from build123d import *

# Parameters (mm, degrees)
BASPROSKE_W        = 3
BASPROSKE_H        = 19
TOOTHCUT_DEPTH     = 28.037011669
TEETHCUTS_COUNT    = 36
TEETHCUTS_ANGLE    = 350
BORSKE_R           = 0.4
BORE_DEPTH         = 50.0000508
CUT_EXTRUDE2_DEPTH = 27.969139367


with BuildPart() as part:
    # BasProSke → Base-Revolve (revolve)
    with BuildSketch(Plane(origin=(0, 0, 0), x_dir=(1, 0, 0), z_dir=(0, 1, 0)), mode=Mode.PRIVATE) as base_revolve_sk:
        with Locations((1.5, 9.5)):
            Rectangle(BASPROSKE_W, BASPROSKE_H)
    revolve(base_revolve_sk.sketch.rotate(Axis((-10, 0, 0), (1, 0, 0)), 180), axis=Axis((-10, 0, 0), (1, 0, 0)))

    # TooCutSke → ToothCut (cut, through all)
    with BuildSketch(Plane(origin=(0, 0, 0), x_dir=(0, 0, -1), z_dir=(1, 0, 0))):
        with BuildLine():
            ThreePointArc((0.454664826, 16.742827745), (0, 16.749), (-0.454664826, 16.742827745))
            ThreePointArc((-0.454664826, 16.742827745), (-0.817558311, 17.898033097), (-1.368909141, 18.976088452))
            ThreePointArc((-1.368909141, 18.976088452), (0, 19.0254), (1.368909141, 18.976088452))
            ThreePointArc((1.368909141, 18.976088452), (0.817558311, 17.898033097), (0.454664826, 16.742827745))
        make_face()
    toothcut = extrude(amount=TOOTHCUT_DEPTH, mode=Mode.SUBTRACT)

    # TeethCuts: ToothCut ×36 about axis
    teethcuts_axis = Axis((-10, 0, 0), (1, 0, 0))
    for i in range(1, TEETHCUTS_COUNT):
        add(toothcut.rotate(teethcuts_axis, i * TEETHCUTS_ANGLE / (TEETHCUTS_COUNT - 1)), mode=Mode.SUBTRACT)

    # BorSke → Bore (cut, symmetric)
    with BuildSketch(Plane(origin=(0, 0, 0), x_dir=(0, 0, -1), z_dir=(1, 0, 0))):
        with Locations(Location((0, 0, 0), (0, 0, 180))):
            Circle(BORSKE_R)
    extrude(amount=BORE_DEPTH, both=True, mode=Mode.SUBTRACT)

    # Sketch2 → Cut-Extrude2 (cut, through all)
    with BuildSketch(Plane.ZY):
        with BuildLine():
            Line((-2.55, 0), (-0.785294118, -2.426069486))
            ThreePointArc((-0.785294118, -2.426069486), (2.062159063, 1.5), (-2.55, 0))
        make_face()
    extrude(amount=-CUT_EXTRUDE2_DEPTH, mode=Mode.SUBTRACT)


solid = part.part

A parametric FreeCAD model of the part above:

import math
import FreeCAD as App
import Part
import Sketcher

V = App.Vector

doc = App.newDocument("Part")
body = doc.addObject("PartDesign::Body", "Body")

# Sketch on XZ plane
sketch1 = body.newObject("Sketcher::SketchObject", "Sketch")
sketch1.AttachmentSupport = (doc.getObject("XZ_Plane"), [""])
sketch1.MapMode = "FlatFace"
sketch1.addGeometry([
    Part.LineSegment(V(0, -19, 0), V(0, 0, 0)),
    Part.LineSegment(V(0, 0, 0), V(3, 0, 0)),
    Part.LineSegment(V(3, 0, 0), V(3, -19, 0)),
    Part.LineSegment(V(3, -19, 0), V(0, -19, 0)),
], False)
sketch1.addConstraint([
    Sketcher.Constraint("Coincident", 0, 2, 1, 1),
    Sketcher.Constraint("Coincident", 1, 2, 2, 1),
    Sketcher.Constraint("Coincident", 2, 2, 3, 1),
    Sketcher.Constraint("Coincident", 3, 2, 0, 1),
    Sketcher.Constraint("Vertical", 0),
    Sketcher.Constraint("Horizontal", 1),
    Sketcher.Constraint("Vertical", 2),
    Sketcher.Constraint("Horizontal", 3),
    Sketcher.Constraint("Coincident", 0, 2, -1, 1),
    Sketcher.Constraint("DistanceX", 1, 1, 1, 2, 3.0),
    Sketcher.Constraint("DistanceY", 0, 1, 0, 2, 19.0),
])
revolution = body.newObject("PartDesign::Revolution", "Revolution")
revolution.Profile = sketch1
revolution.ReferenceAxis = (sketch1, ["H_Axis"])
revolution.Angle = 360

# Sketch on YZ plane
sketch2 = body.newObject("Sketcher::SketchObject", "Sketch001")
sketch2.AttachmentSupport = (doc.getObject("YZ_Plane"), [""])
sketch2.MapMode = "FlatFace"
sketch2.addGeometry([
    Part.ArcOfCircle(Part.Circle(V(0, 0, 0), V(0, 0, 1), 16.749), math.radians(-1.55553), math.radians(1.55553)),
    Part.ArcOfCircle(Part.Circle(V(15.170247, -7.480829, 0), V(0, 0, 1), 7.2), math.radians(58.089824), math.radians(77.384103)),
    Part.ArcOfCircle(Part.Circle(V(0, 0, 0), V(0, 0, 1), 19.0254), math.radians(-4.126092), math.radians(4.126092)),
    Part.ArcOfCircle(Part.Circle(V(15.170247, 7.480829, 0), V(0, 0, 1), 7.2), math.radians(-77.384103), math.radians(-58.089824)),
], False)
sketch2.addConstraint([
    Sketcher.Constraint("Coincident", 0, 1, 1, 2),
    Sketcher.Constraint("Coincident", 1, 1, 2, 1),
    Sketcher.Constraint("Coincident", 2, 2, 3, 2),
    Sketcher.Constraint("Coincident", 3, 1, 0, 2),
    Sketcher.Constraint("Coincident", 0, 3, -1, 1),
    Sketcher.Constraint("Coincident", 2, 3, -1, 1),
    Sketcher.Constraint("Equal", 1, 3),
    Sketcher.Constraint("Symmetric", 1, 3, 3, 3, -1),
    Sketcher.Constraint("Radius", 1, 7.2),
    Sketcher.Constraint("Radius", 0, 16.749),
    Sketcher.Constraint("Radius", 2, 19.0254),
    Sketcher.Constraint("DistanceY", 1, 3, -1, 1, 7.480829),
    Sketcher.Constraint("DistanceX", -1, 1, 1, 1, 18.976088),
])
pocket1 = body.newObject("PartDesign::Pocket", "Pocket")
pocket1.Profile = sketch2
pocket1.Type = "ThroughAll"
pocket1.Reversed = True
doc.recompute()

polarpattern = body.newObject("PartDesign::PolarPattern", "PolarPattern")
polarpattern.Originals = [pocket1]
polarpattern.Axis = (doc.getObject("X_Axis"), [""])
polarpattern.Angle = 360
polarpattern.Occurrences = 36
body.Tip = polarpattern

# Sketch on YZ plane
sketch3 = body.newObject("Sketcher::SketchObject", "Sketch002")
sketch3.AttachmentSupport = (doc.getObject("YZ_Plane"), [""])
sketch3.MapMode = "FlatFace"
sketch3.addGeometry(Part.Circle(V(0, 0, 0), V(0, 0, 1), 0.4), False)
sketch3.addConstraint([
    Sketcher.Constraint("Coincident", 0, 3, -1, 1),
    Sketcher.Constraint("Diameter", 0, 0.8),
])
pocket2 = body.newObject("PartDesign::Pocket", "Pocket001")
pocket2.Profile = sketch3
pocket2.Length = 100.000102
pocket2.Midplane = True

# Sketch on YZ plane
sketch4 = body.newObject("Sketcher::SketchObject", "Sketch003")
sketch4.AttachmentSupport = (doc.getObject("YZ_Plane"), [""])
sketch4.MapMode = "FlatFace"
sketch4.addGeometry([
    Part.LineSegment(V(0, -2.55, 0), V(-2.426069, -0.785294, 0)),
    Part.ArcOfCircle(Part.Circle(V(0, 0, 0), V(0, 0, 1), 2.55), math.radians(-90), math.radians(197.936242)),
], False)
sketch4.addConstraint([
    Sketcher.Constraint("Coincident", 0, 1, 1, 1),
    Sketcher.Constraint("Coincident", 1, 2, 0, 2),
    Sketcher.Constraint("Coincident", 1, 3, -1, 1),
    Sketcher.Constraint("PointOnObject", 0, 1, -2),
    Sketcher.Constraint("Radius", 1, 2.55),
    Sketcher.Constraint("Distance", 0, 3.0),
])
pocket3 = body.newObject("PartDesign::Pocket", "Pocket002")
pocket3.Profile = sketch4
pocket3.Type = "ThroughAll"
pocket3.Reversed = True

doc.recompute()
